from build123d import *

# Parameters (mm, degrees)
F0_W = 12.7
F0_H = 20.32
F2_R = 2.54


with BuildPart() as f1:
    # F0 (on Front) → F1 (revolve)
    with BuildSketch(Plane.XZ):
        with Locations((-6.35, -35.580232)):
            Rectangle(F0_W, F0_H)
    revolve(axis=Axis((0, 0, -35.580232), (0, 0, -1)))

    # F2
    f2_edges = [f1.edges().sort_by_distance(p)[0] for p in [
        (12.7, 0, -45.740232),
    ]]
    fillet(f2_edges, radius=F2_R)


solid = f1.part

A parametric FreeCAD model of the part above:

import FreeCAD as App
import Part
import Sketcher

V = App.Vector
Q = App.Units.Quantity


def edges_at(feature, points):
    """Names of the edges that pass closest to the given points."""
    edges = feature.Shape.Edges
    near = lambda p: min(range(len(edges)), key=lambda i: edges[i].distToShape(Part.Vertex(*p))[0])
    return sorted({f"Edge{near(p) + 1}" for p in points})


def add_polygon(sketch, points):
    """Adds a closed chain of lines whose ends are joined by coincident constraints."""
    first, n = sketch.GeometryCount, len(points)
    for a, b in zip(points, points[1:] + points[:1]):
        sketch.addGeometry(Part.LineSegment(App.Vector(*a, 0), App.Vector(*b, 0)), False)
    for i in range(n):
        sketch.addConstraint(Sketcher.Constraint("Coincident", first + i, 2, first + (i + 1) % n, 1))

doc = App.newDocument("Part")
body = doc.addObject("PartDesign::Body", "Body")

# Sketch on XZ plane
sketch1 = body.newObject("Sketcher::SketchObject", "Sketch")
sketch1.AttachmentSupport = (doc.getObject("XZ_Plane"), [""])
sketch1.MapMode = "FlatFace"
add_polygon(sketch1, [(-12.7, -25.420232), (-12.7, -45.740232), (0, -45.740232), (0, -25.420232)])  # lines 0-3
sketch1.addConstraint([
    Sketcher.Constraint("Vertical", 0),
    Sketcher.Constraint("Horizontal", 1),
    Sketcher.Constraint("Vertical", 2),
    Sketcher.Constraint("Horizontal", 3),
    Sketcher.Constraint("PointOnObject", 1, 2, -2),
    Sketcher.Constraint("DistanceX", 1, 1, 1, 2, Q("0.5 in")),
    Sketcher.Constraint("DistanceY", 0, 2, 0, 1, Q("0.8 in")),
    Sketcher.Constraint("DistanceY", 2, 2, -1, 1, 25.420232),
])
revolution = body.newObject("PartDesign::Revolution", "Revolution")
revolution.Profile = sketch1
revolution.ReferenceAxis = (sketch1, ["V_Axis"])
revolution.Angle = 360
doc.recompute()

fillet = body.newObject("PartDesign::Fillet", "Fillet")
fillet.Base = (revolution, edges_at(revolution, [(12.7, 0, -45.74)]))
fillet.Radius = Q("0.1 in")

doc.recompute()
